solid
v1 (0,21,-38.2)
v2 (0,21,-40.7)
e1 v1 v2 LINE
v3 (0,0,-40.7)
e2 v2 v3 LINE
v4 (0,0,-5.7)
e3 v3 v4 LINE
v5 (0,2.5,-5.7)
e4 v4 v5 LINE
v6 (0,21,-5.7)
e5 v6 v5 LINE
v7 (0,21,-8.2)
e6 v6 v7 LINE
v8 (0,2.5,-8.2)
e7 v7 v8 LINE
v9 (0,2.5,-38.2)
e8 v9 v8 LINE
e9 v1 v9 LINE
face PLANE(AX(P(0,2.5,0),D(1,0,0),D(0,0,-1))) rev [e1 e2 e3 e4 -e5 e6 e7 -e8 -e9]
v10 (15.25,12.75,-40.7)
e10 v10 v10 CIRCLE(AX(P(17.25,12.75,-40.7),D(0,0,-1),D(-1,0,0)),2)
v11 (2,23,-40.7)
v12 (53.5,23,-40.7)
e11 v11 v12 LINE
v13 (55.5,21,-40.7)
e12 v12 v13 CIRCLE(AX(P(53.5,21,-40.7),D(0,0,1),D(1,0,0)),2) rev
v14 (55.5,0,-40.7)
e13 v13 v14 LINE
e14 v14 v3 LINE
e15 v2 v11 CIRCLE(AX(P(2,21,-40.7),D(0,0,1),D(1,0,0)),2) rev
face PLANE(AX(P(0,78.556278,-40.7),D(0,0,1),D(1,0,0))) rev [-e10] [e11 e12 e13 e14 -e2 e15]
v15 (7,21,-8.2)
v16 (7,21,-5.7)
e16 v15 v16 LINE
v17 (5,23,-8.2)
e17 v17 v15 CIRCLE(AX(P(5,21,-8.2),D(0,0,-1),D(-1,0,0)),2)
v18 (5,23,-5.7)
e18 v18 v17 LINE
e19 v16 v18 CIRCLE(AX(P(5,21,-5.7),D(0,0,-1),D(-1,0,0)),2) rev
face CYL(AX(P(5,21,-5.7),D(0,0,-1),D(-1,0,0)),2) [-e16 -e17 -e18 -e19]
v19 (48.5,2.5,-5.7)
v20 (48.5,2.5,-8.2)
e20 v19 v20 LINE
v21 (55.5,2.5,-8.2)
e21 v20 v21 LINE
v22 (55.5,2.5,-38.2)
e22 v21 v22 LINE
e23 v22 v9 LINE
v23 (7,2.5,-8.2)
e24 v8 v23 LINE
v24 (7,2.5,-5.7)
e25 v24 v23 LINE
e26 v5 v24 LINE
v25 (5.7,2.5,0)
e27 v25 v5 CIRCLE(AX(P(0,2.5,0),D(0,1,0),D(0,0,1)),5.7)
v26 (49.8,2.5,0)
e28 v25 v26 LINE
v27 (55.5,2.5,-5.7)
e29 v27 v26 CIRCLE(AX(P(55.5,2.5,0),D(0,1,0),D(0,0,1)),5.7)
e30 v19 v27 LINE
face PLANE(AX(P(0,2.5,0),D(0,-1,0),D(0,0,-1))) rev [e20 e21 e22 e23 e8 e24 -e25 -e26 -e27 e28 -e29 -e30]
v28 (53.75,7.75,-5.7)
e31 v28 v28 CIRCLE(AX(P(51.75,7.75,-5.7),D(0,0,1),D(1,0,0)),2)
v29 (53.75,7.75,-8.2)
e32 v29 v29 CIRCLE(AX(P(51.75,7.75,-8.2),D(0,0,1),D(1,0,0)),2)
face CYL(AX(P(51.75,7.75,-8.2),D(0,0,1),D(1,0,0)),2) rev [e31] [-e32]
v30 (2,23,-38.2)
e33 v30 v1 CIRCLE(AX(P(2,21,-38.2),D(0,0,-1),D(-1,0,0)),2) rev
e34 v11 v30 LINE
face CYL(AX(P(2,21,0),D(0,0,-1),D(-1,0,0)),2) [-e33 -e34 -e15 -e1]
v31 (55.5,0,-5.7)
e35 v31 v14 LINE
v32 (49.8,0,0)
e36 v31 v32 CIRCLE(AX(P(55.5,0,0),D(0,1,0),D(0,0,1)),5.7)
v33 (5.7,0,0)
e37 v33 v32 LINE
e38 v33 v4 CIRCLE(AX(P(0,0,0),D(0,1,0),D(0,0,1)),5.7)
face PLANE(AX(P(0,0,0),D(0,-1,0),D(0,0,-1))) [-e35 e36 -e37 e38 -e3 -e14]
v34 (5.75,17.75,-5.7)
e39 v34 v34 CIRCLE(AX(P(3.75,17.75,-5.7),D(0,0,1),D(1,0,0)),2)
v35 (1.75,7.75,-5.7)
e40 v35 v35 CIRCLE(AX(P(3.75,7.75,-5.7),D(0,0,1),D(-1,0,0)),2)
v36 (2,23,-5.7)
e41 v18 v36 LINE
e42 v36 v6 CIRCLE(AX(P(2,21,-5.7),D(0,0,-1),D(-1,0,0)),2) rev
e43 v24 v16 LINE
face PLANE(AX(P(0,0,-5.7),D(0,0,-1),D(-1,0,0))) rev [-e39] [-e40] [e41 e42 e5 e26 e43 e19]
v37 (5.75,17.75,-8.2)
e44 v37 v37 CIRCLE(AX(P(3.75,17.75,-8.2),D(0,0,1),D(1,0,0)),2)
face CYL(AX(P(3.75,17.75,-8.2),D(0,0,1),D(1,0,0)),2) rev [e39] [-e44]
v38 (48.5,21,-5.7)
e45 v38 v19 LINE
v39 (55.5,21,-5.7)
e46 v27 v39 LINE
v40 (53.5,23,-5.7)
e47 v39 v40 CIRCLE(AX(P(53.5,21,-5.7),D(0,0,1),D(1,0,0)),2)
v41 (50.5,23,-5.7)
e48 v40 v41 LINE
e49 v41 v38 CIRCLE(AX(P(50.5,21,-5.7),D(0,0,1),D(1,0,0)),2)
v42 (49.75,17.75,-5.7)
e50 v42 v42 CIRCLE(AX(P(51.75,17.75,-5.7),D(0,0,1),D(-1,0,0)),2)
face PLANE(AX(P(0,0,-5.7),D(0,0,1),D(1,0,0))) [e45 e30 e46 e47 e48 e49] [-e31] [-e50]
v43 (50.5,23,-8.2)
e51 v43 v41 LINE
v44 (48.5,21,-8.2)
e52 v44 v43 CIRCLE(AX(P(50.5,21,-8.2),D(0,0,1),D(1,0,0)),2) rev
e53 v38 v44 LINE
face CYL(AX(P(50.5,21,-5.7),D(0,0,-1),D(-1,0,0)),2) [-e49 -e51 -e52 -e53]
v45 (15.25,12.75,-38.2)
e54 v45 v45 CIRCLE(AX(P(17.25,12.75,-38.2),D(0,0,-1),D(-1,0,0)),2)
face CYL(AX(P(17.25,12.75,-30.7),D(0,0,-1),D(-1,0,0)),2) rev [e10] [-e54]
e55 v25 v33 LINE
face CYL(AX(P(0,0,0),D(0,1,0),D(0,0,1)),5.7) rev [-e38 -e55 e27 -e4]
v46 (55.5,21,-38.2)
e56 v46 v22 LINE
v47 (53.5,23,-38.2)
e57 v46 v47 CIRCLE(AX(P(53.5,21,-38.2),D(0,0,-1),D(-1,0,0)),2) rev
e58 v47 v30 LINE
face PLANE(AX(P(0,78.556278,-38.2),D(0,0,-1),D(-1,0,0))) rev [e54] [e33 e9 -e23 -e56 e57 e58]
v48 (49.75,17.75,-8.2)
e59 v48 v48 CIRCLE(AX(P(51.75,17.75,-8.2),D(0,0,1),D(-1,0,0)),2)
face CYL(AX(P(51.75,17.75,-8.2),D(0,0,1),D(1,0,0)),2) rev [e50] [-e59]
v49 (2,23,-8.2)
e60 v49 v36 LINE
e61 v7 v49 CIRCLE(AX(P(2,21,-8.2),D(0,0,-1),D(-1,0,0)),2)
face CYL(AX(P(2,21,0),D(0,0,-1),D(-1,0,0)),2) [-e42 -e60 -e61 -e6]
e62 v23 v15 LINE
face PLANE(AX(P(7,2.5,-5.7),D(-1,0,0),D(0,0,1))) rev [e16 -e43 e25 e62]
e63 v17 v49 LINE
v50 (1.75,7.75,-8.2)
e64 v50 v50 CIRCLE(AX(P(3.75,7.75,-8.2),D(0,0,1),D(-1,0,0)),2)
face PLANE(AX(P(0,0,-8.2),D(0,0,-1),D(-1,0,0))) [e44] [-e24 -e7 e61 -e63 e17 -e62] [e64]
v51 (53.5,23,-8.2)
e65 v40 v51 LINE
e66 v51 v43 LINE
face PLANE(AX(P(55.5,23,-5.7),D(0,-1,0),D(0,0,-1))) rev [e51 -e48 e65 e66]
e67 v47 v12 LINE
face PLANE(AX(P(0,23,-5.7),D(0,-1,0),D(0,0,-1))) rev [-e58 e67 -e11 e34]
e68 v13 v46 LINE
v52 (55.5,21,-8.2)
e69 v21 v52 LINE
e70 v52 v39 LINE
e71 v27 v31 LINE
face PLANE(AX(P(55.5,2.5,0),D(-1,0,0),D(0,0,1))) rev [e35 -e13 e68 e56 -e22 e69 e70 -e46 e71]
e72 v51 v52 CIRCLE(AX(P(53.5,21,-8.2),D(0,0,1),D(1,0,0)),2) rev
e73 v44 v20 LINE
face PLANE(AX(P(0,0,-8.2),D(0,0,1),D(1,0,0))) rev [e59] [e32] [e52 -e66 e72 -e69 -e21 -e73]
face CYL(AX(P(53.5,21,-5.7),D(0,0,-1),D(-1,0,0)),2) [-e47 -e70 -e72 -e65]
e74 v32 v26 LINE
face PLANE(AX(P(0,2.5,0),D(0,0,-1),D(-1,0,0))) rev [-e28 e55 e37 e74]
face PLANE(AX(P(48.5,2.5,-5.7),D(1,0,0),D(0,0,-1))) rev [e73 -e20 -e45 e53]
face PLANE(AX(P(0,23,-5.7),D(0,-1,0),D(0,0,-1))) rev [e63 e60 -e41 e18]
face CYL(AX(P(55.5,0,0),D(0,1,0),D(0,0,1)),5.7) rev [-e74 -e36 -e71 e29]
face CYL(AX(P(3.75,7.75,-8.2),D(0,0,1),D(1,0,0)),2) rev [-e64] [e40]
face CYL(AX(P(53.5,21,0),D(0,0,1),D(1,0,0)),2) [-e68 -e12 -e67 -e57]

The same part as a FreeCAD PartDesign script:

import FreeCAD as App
import Part
import Sketcher
Q = App.Units.Quantity


def edges_at(feature, points):
    """Names of the edges that pass closest to the given points."""
    edges = feature.Shape.Edges
    near = lambda p: min(range(len(edges)), key=lambda i: edges[i].distToShape(Part.Vertex(*p))[0])
    return sorted({f"Edge{near(p) + 1}" for p in points})

doc = App.newDocument("Part")
params = doc.addObject("Spreadsheet::Sheet", "Params")
for row, (alias, value) in enumerate([
    ("sketch1_width", "55.5 mm"),
    ("sketch1_height", "38.2 mm"),
    ("pad1_length", "2.5 mm"),
    ("sketch2_width", "7 mm"),
    ("sketch2_height", "20.5 mm"),
    ("pad2_length", "2.5 mm"),
    ("sketch3_diameter", "4 mm"),
    ("pocket1_length", "2.5 mm"),
    ("sketch4_width", "55.5 mm"),
    ("sketch4_height", "2.5 mm"),
    ("pad3_length", "23 mm"),
    ("sketch5_diameter", "11.4 mm"),
    ("pocket2_length", "2.5 mm"),
    ("fillet_radius", "2 mm"),
    ("sketch6_diameter", "4 mm"),
    ("pocket3_length", "10 mm"),
], start=1):
    params.set(f"A{row}", alias)
    params.set(f"B{row}", "=" + value)
    params.setAlias(f"B{row}", alias)

body = doc.addObject("PartDesign::Body", "Body")

# Sketch on XZ plane
sketch1 = body.newObject("Sketcher::SketchObject", "Sketch")
sketch1.AttachmentSupport = (doc.getObject("XZ_Plane"), [""])
sketch1.MapMode = "FlatFace"
sketch1.addGeometry(Part.LineSegment(App.Vector(0, -38, 0), App.Vector(0, 0, 0)), False)
sketch1.addGeometry(Part.LineSegment(App.Vector(0, 0, 0), App.Vector(56, 0, 0)), False)
sketch1.addGeometry(Part.LineSegment(App.Vector(56, 0, 0), App.Vector(56, -38, 0)), False)
sketch1.addGeometry(Part.LineSegment(App.Vector(56, -38, 0), App.Vector(0, -38, 0)), False)
sketch1.addConstraint(Sketcher.Constraint("Coincident", 0, 2, 1, 1))
sketch1.addConstraint(Sketcher.Constraint("Coincident", 1, 2, 2, 1))
sketch1.addConstraint(Sketcher.Constraint("Coincident", 2, 2, 3, 1))
sketch1.addConstraint(Sketcher.Constraint("Coincident", 3, 2, 0, 1))
sketch1.addConstraint(Sketcher.Constraint("Vertical", 0))
sketch1.addConstraint(Sketcher.Constraint("Horizontal", 1))
sketch1.addConstraint(Sketcher.Constraint("Vertical", 2))
sketch1.addConstraint(Sketcher.Constraint("Horizontal", 3))
sketch1.addConstraint(Sketcher.Constraint("Coincident", 0, 2, -1, 1))
sketch1.addConstraint(Sketcher.Constraint("DistanceX", 1, 1, 1, 2, Q("55.5 mm")))
sketch1.addConstraint(Sketcher.Constraint("DistanceY", 0, 1, 0, 2, Q("38.2 mm")))
sketch1.setExpression("Constraints[9]", "Params.sketch1_width")
sketch1.setExpression("Constraints[10]", "Params.sketch1_height")
pad1 = body.newObject("PartDesign::Pad", "Pad")
pad1.Profile = sketch1
pad1.setExpression("Length", "Params.pad1_length")
pad1.Reversed = True

# Sketch on XY plane
sketch2 = body.newObject("Sketcher::SketchObject", "Sketch001")
sketch2.AttachmentSupport = (doc.getObject("XY_Plane"), [""])
sketch2.MapMode = "FlatFace"
sketch2.AttachmentOffset = App.Placement(App.Vector(0, 0, -8.2), App.Rotation())
sketch2.addGeometry(Part.LineSegment(App.Vector(0, 23, 0), App.Vector(0, 2, 0)), False)
sketch2.addGeometry(Part.LineSegment(App.Vector(0, 2, 0), App.Vector(7, 2, 0)), False)
sketch2.addGeometry(Part.LineSegment(App.Vector(7, 2, 0), App.Vector(7, 23, 0)), False)
sketch2.addGeometry(Part.LineSegment(App.Vector(7, 23, 0), App.Vector(0, 23, 0)), False)
sketch2.addGeometry(Part.LineSegment(App.Vector(48, 23, 0), App.Vector(48, 2, 0)), False)
sketch2.addGeometry(Part.LineSegment(App.Vector(48, 2, 0), App.Vector(56, 2, 0)), False)
sketch2.addGeometry(Part.LineSegment(App.Vector(56, 2, 0), App.Vector(56, 23, 0)), False)
sketch2.addGeometry(Part.LineSegment(App.Vector(56, 23, 0), App.Vector(48, 23, 0)), False)
sketch2.addConstraint(Sketcher.Constraint("Coincident", 0, 2, 1, 1))
sketch2.addConstraint(Sketcher.Constraint("Coincident", 1, 2, 2, 1))
sketch2.addConstraint(Sketcher.Constraint("Coincident", 2, 2, 3, 1))
sketch2.addConstraint(Sketcher.Constraint("Coincident", 3, 2, 0, 1))
sketch2.addConstraint(Sketcher.Constraint("Coincident", 4, 2, 5, 1))
sketch2.addConstraint(Sketcher.Constraint("Coincident", 5, 2, 6, 1))
sketch2.addConstraint(Sketcher.Constraint("Coincident", 6, 2, 7, 1))
sketch2.addConstraint(Sketcher.Constraint("Coincident", 7, 2, 4, 1))
sketch2.addConstraint(Sketcher.Constraint("Vertical", 0))
sketch2.addConstraint(Sketcher.Constraint("Horizontal", 1))
sketch2.addConstraint(Sketcher.Constraint("Vertical", 2))
sketch2.addConstraint(Sketcher.Constraint("Horizontal", 3))
sketch2.addConstraint(Sketcher.Constraint("Vertical", 4))
sketch2.addConstraint(Sketcher.Constraint("Horizontal", 5))
sketch2.addConstraint(Sketcher.Constraint("Vertical", 6))
sketch2.addConstraint(Sketcher.Constraint("Horizontal", 7))
sketch2.addConstraint(Sketcher.Constraint("PointOnObject", 0, 2, -2))
sketch2.addConstraint(Sketcher.Constraint("Horizontal", 1, 2, 4, 2))
sketch2.addConstraint(Sketcher.Constraint("Horizontal", 3, 2, 6, 2))
sketch2.addConstraint(Sketcher.Constraint("Equal", 3, 5))
sketch2.addConstraint(Sketcher.Constraint("DistanceX", 1, 1, 1, 2, Q("7 mm")))
sketch2.addConstraint(Sketcher.Constraint("DistanceY", 0, 2, 0, 1, Q("20.5 mm")))
sketch2.addConstraint(Sketcher.Constraint("DistanceY", -1, 1, 2, 2, Q("23 mm")))
sketch2.addConstraint(Sketcher.Constraint("DistanceX", -1, 1, 4, 2, Q("48.5 mm")))
sketch2.setExpression("Constraints[20]", "Params.sketch2_width")
sketch2.setExpression("Constraints[21]", "Params.sketch2_height")
pad2 = body.newObject("PartDesign::Pad", "Pad001")
pad2.Profile = sketch2
pad2.setExpression("Length", "Params.pad2_length")

# Sketch on XY plane
sketch3 = body.newObject("Sketcher::SketchObject", "Sketch002")
sketch3.AttachmentSupport = (doc.getObject("XY_Plane"), [""])
sketch3.MapMode = "FlatFace"
sketch3.AttachmentOffset = App.Placement(App.Vector(0, 0, -5.7), App.Rotation())
sketch3.addGeometry(Part.Circle(App.Vector(3.8, 17.8, 0), App.Vector(0, 0, 1), 2), False)
sketch3.addGeometry(Part.Circle(App.Vector(3.8, 7.8, 0), App.Vector(0, 0, 1), 2), False)
sketch3.addGeometry(Part.Circle(App.Vector(51.8, 7.8, 0), App.Vector(0, 0, 1), 2), False)
sketch3.addGeometry(Part.Circle(App.Vector(51.8, 17.8, 0), App.Vector(0, 0, 1), 2), False)
sketch3.addConstraint(Sketcher.Constraint("Equal", 0, 1))
sketch3.addConstraint(Sketcher.Constraint("Equal", 1, 2))
sketch3.addConstraint(Sketcher.Constraint("Equal", 2, 3))
sketch3.addConstraint(Sketcher.Constraint("Horizontal", 1, 3, 2, 3))
sketch3.addConstraint(Sketcher.Constraint("Horizontal", 0, 3, 3, 3))
sketch3.addConstraint(Sketcher.Constraint("Vertical", 0, 3, 1, 3))
sketch3.addConstraint(Sketcher.Constraint("Vertical", 2, 3, 3, 3))
sketch3.addConstraint(Sketcher.Constraint("Diameter", 0, Q("4 mm")))
sketch3.addConstraint(Sketcher.Constraint("DistanceY", 1, 3, 0, 3, Q("10 mm")))
sketch3.addConstraint(Sketcher.Constraint("DistanceX", 1, 3, 2, 3, Q("48 mm")))
sketch3.addConstraint(Sketcher.Constraint("DistanceX", -1, 1, 0, 3, Q("3.75 mm")))
sketch3.addConstraint(Sketcher.Constraint("DistanceY", -1, 1, 0, 3, Q("17.75 mm")))
sketch3.setExpression("Constraints[7]", "Params.sketch3_diameter")
pocket1 = body.newObject("PartDesign::Pocket", "Pocket")
pocket1.Profile = sketch3
pocket1.setExpression("Length", "Params.pocket1_length")

# Sketch on XZ plane
sketch4 = body.newObject("Sketcher::SketchObject", "Sketch003")
sketch4.AttachmentSupport = (doc.getObject("XZ_Plane"), [""])
sketch4.MapMode = "FlatFace"
sketch4.addGeometry(Part.LineSegment(App.Vector(0, -40.7, 0), App.Vector(0, -38.2, 0)), False)
sketch4.addGeometry(Part.LineSegment(App.Vector(0, -38.2, 0), App.Vector(55.5, -38.2, 0)), False)
sketch4.addGeometry(Part.LineSegment(App.Vector(55.5, -38.2, 0), App.Vector(55.5, -40.7, 0)), False)
sketch4.addGeometry(Part.LineSegment(App.Vector(55.5, -40.7, 0), App.Vector(0, -40.7, 0)), False)
sketch4.addConstraint(Sketcher.Constraint("Coincident", 0, 2, 1, 1))
sketch4.addConstraint(Sketcher.Constraint("Coincident", 1, 2, 2, 1))
sketch4.addConstraint(Sketcher.Constraint("Coincident", 2, 2, 3, 1))
sketch4.addConstraint(Sketcher.Constraint("Coincident", 3, 2, 0, 1))
sketch4.addConstraint(Sketcher.Constraint("Vertical", 0))
sketch4.addConstraint(Sketcher.Constraint("Horizontal", 1))
sketch4.addConstraint(Sketcher.Constraint("Vertical", 2))
sketch4.addConstraint(Sketcher.Constraint("Horizontal", 3))
sketch4.addConstraint(Sketcher.Constraint("PointOnObject", 0, 2, -2))
sketch4.addConstraint(Sketcher.Constraint("DistanceX", 1, 1, 1, 2, Q("55.5 mm")))
sketch4.addConstraint(Sketcher.Constraint("DistanceY", 0, 1, 0, 2, Q("2.5 mm")))
sketch4.addConstraint(Sketcher.Constraint("DistanceY", 0, 2, -1, 1, Q("38.2 mm")))
sketch4.setExpression("Constraints[9]", "Params.sketch4_width")
sketch4.setExpression("Constraints[10]", "Params.sketch4_height")
pad3 = body.newObject("PartDesign::Pad", "Pad002")
pad3.Profile = sketch4
pad3.setExpression("Length", "Params.pad3_length")
pad3.Reversed = True

# Sketch on XZ plane
sketch5 = body.newObject("Sketcher::SketchObject", "Sketch004")
sketch5.AttachmentSupport = (doc.getObject("XZ_Plane"), [""])
sketch5.MapMode = "FlatFace"
sketch5.AttachmentOffset = App.Placement(App.Vector(0, 0, -2.5), App.Rotation())
sketch5.addGeometry(Part.Circle(App.Vector(0, 0, 0), App.Vector(0, 0, 1), 6), False)
sketch5.addGeometry(Part.Circle(App.Vector(56, 0, 0), App.Vector(0, 0, 1), 6), False)
sketch5.addConstraint(Sketcher.Constraint("Coincident", 0, 3, -1, 1))
sketch5.addConstraint(Sketcher.Constraint("Equal", 0, 1))
sketch5.addConstraint(Sketcher.Constraint("PointOnObject", 1, 3, -1))
sketch5.addConstraint(Sketcher.Constraint("Diameter", 0, Q("11.4 mm")))
sketch5.addConstraint(Sketcher.Constraint("DistanceX", -1, 1, 1, 3, Q("55.5 mm")))
sketch5.setExpression("Constraints[3]", "Params.sketch5_diameter")
pocket2 = body.newObject("PartDesign::Pocket", "Pocket001")
pocket2.Profile = sketch5
pocket2.setExpression("Length", "Params.pocket2_length")
pocket2.Reversed = True
doc.recompute()

fillet = body.newObject("PartDesign::Fillet", "Fillet")
fillet.Base = (pocket2, edges_at(pocket2, [
    (0, 23, -6.95),
    (7, 23, -6.95),
    (55.5, 23, -6.95),
    (48.5, 23, -6.95),
    (55.5, 23, -39.45),
    (0, 23, -39.45),
]))
fillet.setExpression("Radius", "Params.fillet_radius")

# Sketch on XY plane
sketch6 = body.newObject("Sketcher::SketchObject", "Sketch005")
sketch6.AttachmentSupport = (doc.getObject("XY_Plane"), [""])
sketch6.MapMode = "FlatFace"
sketch6.AttachmentOffset = App.Placement(App.Vector(0, 0, -40.7), App.Rotation())
sketch6.addGeometry(Part.Circle(App.Vector(17.2, 12.8, 0), App.Vector(0, 0, 1), 2), False)
sketch6.addConstraint(Sketcher.Constraint("Diameter", 0, Q("4 mm")))
sketch6.addConstraint(Sketcher.Constraint("DistanceX", -1, 1, 0, 3, Q("17.25 mm")))
sketch6.addConstraint(Sketcher.Constraint("DistanceY", -1, 1, 0, 3, Q("12.75 mm")))
sketch6.setExpression("Constraints[0]", "Params.sketch6_diameter")
pocket3 = body.newObject("PartDesign::Pocket", "Pocket002")
pocket3.Profile = sketch6
pocket3.setExpression("Length", "Params.pocket3_length")
pocket3.Reversed = True

doc.recompute()
